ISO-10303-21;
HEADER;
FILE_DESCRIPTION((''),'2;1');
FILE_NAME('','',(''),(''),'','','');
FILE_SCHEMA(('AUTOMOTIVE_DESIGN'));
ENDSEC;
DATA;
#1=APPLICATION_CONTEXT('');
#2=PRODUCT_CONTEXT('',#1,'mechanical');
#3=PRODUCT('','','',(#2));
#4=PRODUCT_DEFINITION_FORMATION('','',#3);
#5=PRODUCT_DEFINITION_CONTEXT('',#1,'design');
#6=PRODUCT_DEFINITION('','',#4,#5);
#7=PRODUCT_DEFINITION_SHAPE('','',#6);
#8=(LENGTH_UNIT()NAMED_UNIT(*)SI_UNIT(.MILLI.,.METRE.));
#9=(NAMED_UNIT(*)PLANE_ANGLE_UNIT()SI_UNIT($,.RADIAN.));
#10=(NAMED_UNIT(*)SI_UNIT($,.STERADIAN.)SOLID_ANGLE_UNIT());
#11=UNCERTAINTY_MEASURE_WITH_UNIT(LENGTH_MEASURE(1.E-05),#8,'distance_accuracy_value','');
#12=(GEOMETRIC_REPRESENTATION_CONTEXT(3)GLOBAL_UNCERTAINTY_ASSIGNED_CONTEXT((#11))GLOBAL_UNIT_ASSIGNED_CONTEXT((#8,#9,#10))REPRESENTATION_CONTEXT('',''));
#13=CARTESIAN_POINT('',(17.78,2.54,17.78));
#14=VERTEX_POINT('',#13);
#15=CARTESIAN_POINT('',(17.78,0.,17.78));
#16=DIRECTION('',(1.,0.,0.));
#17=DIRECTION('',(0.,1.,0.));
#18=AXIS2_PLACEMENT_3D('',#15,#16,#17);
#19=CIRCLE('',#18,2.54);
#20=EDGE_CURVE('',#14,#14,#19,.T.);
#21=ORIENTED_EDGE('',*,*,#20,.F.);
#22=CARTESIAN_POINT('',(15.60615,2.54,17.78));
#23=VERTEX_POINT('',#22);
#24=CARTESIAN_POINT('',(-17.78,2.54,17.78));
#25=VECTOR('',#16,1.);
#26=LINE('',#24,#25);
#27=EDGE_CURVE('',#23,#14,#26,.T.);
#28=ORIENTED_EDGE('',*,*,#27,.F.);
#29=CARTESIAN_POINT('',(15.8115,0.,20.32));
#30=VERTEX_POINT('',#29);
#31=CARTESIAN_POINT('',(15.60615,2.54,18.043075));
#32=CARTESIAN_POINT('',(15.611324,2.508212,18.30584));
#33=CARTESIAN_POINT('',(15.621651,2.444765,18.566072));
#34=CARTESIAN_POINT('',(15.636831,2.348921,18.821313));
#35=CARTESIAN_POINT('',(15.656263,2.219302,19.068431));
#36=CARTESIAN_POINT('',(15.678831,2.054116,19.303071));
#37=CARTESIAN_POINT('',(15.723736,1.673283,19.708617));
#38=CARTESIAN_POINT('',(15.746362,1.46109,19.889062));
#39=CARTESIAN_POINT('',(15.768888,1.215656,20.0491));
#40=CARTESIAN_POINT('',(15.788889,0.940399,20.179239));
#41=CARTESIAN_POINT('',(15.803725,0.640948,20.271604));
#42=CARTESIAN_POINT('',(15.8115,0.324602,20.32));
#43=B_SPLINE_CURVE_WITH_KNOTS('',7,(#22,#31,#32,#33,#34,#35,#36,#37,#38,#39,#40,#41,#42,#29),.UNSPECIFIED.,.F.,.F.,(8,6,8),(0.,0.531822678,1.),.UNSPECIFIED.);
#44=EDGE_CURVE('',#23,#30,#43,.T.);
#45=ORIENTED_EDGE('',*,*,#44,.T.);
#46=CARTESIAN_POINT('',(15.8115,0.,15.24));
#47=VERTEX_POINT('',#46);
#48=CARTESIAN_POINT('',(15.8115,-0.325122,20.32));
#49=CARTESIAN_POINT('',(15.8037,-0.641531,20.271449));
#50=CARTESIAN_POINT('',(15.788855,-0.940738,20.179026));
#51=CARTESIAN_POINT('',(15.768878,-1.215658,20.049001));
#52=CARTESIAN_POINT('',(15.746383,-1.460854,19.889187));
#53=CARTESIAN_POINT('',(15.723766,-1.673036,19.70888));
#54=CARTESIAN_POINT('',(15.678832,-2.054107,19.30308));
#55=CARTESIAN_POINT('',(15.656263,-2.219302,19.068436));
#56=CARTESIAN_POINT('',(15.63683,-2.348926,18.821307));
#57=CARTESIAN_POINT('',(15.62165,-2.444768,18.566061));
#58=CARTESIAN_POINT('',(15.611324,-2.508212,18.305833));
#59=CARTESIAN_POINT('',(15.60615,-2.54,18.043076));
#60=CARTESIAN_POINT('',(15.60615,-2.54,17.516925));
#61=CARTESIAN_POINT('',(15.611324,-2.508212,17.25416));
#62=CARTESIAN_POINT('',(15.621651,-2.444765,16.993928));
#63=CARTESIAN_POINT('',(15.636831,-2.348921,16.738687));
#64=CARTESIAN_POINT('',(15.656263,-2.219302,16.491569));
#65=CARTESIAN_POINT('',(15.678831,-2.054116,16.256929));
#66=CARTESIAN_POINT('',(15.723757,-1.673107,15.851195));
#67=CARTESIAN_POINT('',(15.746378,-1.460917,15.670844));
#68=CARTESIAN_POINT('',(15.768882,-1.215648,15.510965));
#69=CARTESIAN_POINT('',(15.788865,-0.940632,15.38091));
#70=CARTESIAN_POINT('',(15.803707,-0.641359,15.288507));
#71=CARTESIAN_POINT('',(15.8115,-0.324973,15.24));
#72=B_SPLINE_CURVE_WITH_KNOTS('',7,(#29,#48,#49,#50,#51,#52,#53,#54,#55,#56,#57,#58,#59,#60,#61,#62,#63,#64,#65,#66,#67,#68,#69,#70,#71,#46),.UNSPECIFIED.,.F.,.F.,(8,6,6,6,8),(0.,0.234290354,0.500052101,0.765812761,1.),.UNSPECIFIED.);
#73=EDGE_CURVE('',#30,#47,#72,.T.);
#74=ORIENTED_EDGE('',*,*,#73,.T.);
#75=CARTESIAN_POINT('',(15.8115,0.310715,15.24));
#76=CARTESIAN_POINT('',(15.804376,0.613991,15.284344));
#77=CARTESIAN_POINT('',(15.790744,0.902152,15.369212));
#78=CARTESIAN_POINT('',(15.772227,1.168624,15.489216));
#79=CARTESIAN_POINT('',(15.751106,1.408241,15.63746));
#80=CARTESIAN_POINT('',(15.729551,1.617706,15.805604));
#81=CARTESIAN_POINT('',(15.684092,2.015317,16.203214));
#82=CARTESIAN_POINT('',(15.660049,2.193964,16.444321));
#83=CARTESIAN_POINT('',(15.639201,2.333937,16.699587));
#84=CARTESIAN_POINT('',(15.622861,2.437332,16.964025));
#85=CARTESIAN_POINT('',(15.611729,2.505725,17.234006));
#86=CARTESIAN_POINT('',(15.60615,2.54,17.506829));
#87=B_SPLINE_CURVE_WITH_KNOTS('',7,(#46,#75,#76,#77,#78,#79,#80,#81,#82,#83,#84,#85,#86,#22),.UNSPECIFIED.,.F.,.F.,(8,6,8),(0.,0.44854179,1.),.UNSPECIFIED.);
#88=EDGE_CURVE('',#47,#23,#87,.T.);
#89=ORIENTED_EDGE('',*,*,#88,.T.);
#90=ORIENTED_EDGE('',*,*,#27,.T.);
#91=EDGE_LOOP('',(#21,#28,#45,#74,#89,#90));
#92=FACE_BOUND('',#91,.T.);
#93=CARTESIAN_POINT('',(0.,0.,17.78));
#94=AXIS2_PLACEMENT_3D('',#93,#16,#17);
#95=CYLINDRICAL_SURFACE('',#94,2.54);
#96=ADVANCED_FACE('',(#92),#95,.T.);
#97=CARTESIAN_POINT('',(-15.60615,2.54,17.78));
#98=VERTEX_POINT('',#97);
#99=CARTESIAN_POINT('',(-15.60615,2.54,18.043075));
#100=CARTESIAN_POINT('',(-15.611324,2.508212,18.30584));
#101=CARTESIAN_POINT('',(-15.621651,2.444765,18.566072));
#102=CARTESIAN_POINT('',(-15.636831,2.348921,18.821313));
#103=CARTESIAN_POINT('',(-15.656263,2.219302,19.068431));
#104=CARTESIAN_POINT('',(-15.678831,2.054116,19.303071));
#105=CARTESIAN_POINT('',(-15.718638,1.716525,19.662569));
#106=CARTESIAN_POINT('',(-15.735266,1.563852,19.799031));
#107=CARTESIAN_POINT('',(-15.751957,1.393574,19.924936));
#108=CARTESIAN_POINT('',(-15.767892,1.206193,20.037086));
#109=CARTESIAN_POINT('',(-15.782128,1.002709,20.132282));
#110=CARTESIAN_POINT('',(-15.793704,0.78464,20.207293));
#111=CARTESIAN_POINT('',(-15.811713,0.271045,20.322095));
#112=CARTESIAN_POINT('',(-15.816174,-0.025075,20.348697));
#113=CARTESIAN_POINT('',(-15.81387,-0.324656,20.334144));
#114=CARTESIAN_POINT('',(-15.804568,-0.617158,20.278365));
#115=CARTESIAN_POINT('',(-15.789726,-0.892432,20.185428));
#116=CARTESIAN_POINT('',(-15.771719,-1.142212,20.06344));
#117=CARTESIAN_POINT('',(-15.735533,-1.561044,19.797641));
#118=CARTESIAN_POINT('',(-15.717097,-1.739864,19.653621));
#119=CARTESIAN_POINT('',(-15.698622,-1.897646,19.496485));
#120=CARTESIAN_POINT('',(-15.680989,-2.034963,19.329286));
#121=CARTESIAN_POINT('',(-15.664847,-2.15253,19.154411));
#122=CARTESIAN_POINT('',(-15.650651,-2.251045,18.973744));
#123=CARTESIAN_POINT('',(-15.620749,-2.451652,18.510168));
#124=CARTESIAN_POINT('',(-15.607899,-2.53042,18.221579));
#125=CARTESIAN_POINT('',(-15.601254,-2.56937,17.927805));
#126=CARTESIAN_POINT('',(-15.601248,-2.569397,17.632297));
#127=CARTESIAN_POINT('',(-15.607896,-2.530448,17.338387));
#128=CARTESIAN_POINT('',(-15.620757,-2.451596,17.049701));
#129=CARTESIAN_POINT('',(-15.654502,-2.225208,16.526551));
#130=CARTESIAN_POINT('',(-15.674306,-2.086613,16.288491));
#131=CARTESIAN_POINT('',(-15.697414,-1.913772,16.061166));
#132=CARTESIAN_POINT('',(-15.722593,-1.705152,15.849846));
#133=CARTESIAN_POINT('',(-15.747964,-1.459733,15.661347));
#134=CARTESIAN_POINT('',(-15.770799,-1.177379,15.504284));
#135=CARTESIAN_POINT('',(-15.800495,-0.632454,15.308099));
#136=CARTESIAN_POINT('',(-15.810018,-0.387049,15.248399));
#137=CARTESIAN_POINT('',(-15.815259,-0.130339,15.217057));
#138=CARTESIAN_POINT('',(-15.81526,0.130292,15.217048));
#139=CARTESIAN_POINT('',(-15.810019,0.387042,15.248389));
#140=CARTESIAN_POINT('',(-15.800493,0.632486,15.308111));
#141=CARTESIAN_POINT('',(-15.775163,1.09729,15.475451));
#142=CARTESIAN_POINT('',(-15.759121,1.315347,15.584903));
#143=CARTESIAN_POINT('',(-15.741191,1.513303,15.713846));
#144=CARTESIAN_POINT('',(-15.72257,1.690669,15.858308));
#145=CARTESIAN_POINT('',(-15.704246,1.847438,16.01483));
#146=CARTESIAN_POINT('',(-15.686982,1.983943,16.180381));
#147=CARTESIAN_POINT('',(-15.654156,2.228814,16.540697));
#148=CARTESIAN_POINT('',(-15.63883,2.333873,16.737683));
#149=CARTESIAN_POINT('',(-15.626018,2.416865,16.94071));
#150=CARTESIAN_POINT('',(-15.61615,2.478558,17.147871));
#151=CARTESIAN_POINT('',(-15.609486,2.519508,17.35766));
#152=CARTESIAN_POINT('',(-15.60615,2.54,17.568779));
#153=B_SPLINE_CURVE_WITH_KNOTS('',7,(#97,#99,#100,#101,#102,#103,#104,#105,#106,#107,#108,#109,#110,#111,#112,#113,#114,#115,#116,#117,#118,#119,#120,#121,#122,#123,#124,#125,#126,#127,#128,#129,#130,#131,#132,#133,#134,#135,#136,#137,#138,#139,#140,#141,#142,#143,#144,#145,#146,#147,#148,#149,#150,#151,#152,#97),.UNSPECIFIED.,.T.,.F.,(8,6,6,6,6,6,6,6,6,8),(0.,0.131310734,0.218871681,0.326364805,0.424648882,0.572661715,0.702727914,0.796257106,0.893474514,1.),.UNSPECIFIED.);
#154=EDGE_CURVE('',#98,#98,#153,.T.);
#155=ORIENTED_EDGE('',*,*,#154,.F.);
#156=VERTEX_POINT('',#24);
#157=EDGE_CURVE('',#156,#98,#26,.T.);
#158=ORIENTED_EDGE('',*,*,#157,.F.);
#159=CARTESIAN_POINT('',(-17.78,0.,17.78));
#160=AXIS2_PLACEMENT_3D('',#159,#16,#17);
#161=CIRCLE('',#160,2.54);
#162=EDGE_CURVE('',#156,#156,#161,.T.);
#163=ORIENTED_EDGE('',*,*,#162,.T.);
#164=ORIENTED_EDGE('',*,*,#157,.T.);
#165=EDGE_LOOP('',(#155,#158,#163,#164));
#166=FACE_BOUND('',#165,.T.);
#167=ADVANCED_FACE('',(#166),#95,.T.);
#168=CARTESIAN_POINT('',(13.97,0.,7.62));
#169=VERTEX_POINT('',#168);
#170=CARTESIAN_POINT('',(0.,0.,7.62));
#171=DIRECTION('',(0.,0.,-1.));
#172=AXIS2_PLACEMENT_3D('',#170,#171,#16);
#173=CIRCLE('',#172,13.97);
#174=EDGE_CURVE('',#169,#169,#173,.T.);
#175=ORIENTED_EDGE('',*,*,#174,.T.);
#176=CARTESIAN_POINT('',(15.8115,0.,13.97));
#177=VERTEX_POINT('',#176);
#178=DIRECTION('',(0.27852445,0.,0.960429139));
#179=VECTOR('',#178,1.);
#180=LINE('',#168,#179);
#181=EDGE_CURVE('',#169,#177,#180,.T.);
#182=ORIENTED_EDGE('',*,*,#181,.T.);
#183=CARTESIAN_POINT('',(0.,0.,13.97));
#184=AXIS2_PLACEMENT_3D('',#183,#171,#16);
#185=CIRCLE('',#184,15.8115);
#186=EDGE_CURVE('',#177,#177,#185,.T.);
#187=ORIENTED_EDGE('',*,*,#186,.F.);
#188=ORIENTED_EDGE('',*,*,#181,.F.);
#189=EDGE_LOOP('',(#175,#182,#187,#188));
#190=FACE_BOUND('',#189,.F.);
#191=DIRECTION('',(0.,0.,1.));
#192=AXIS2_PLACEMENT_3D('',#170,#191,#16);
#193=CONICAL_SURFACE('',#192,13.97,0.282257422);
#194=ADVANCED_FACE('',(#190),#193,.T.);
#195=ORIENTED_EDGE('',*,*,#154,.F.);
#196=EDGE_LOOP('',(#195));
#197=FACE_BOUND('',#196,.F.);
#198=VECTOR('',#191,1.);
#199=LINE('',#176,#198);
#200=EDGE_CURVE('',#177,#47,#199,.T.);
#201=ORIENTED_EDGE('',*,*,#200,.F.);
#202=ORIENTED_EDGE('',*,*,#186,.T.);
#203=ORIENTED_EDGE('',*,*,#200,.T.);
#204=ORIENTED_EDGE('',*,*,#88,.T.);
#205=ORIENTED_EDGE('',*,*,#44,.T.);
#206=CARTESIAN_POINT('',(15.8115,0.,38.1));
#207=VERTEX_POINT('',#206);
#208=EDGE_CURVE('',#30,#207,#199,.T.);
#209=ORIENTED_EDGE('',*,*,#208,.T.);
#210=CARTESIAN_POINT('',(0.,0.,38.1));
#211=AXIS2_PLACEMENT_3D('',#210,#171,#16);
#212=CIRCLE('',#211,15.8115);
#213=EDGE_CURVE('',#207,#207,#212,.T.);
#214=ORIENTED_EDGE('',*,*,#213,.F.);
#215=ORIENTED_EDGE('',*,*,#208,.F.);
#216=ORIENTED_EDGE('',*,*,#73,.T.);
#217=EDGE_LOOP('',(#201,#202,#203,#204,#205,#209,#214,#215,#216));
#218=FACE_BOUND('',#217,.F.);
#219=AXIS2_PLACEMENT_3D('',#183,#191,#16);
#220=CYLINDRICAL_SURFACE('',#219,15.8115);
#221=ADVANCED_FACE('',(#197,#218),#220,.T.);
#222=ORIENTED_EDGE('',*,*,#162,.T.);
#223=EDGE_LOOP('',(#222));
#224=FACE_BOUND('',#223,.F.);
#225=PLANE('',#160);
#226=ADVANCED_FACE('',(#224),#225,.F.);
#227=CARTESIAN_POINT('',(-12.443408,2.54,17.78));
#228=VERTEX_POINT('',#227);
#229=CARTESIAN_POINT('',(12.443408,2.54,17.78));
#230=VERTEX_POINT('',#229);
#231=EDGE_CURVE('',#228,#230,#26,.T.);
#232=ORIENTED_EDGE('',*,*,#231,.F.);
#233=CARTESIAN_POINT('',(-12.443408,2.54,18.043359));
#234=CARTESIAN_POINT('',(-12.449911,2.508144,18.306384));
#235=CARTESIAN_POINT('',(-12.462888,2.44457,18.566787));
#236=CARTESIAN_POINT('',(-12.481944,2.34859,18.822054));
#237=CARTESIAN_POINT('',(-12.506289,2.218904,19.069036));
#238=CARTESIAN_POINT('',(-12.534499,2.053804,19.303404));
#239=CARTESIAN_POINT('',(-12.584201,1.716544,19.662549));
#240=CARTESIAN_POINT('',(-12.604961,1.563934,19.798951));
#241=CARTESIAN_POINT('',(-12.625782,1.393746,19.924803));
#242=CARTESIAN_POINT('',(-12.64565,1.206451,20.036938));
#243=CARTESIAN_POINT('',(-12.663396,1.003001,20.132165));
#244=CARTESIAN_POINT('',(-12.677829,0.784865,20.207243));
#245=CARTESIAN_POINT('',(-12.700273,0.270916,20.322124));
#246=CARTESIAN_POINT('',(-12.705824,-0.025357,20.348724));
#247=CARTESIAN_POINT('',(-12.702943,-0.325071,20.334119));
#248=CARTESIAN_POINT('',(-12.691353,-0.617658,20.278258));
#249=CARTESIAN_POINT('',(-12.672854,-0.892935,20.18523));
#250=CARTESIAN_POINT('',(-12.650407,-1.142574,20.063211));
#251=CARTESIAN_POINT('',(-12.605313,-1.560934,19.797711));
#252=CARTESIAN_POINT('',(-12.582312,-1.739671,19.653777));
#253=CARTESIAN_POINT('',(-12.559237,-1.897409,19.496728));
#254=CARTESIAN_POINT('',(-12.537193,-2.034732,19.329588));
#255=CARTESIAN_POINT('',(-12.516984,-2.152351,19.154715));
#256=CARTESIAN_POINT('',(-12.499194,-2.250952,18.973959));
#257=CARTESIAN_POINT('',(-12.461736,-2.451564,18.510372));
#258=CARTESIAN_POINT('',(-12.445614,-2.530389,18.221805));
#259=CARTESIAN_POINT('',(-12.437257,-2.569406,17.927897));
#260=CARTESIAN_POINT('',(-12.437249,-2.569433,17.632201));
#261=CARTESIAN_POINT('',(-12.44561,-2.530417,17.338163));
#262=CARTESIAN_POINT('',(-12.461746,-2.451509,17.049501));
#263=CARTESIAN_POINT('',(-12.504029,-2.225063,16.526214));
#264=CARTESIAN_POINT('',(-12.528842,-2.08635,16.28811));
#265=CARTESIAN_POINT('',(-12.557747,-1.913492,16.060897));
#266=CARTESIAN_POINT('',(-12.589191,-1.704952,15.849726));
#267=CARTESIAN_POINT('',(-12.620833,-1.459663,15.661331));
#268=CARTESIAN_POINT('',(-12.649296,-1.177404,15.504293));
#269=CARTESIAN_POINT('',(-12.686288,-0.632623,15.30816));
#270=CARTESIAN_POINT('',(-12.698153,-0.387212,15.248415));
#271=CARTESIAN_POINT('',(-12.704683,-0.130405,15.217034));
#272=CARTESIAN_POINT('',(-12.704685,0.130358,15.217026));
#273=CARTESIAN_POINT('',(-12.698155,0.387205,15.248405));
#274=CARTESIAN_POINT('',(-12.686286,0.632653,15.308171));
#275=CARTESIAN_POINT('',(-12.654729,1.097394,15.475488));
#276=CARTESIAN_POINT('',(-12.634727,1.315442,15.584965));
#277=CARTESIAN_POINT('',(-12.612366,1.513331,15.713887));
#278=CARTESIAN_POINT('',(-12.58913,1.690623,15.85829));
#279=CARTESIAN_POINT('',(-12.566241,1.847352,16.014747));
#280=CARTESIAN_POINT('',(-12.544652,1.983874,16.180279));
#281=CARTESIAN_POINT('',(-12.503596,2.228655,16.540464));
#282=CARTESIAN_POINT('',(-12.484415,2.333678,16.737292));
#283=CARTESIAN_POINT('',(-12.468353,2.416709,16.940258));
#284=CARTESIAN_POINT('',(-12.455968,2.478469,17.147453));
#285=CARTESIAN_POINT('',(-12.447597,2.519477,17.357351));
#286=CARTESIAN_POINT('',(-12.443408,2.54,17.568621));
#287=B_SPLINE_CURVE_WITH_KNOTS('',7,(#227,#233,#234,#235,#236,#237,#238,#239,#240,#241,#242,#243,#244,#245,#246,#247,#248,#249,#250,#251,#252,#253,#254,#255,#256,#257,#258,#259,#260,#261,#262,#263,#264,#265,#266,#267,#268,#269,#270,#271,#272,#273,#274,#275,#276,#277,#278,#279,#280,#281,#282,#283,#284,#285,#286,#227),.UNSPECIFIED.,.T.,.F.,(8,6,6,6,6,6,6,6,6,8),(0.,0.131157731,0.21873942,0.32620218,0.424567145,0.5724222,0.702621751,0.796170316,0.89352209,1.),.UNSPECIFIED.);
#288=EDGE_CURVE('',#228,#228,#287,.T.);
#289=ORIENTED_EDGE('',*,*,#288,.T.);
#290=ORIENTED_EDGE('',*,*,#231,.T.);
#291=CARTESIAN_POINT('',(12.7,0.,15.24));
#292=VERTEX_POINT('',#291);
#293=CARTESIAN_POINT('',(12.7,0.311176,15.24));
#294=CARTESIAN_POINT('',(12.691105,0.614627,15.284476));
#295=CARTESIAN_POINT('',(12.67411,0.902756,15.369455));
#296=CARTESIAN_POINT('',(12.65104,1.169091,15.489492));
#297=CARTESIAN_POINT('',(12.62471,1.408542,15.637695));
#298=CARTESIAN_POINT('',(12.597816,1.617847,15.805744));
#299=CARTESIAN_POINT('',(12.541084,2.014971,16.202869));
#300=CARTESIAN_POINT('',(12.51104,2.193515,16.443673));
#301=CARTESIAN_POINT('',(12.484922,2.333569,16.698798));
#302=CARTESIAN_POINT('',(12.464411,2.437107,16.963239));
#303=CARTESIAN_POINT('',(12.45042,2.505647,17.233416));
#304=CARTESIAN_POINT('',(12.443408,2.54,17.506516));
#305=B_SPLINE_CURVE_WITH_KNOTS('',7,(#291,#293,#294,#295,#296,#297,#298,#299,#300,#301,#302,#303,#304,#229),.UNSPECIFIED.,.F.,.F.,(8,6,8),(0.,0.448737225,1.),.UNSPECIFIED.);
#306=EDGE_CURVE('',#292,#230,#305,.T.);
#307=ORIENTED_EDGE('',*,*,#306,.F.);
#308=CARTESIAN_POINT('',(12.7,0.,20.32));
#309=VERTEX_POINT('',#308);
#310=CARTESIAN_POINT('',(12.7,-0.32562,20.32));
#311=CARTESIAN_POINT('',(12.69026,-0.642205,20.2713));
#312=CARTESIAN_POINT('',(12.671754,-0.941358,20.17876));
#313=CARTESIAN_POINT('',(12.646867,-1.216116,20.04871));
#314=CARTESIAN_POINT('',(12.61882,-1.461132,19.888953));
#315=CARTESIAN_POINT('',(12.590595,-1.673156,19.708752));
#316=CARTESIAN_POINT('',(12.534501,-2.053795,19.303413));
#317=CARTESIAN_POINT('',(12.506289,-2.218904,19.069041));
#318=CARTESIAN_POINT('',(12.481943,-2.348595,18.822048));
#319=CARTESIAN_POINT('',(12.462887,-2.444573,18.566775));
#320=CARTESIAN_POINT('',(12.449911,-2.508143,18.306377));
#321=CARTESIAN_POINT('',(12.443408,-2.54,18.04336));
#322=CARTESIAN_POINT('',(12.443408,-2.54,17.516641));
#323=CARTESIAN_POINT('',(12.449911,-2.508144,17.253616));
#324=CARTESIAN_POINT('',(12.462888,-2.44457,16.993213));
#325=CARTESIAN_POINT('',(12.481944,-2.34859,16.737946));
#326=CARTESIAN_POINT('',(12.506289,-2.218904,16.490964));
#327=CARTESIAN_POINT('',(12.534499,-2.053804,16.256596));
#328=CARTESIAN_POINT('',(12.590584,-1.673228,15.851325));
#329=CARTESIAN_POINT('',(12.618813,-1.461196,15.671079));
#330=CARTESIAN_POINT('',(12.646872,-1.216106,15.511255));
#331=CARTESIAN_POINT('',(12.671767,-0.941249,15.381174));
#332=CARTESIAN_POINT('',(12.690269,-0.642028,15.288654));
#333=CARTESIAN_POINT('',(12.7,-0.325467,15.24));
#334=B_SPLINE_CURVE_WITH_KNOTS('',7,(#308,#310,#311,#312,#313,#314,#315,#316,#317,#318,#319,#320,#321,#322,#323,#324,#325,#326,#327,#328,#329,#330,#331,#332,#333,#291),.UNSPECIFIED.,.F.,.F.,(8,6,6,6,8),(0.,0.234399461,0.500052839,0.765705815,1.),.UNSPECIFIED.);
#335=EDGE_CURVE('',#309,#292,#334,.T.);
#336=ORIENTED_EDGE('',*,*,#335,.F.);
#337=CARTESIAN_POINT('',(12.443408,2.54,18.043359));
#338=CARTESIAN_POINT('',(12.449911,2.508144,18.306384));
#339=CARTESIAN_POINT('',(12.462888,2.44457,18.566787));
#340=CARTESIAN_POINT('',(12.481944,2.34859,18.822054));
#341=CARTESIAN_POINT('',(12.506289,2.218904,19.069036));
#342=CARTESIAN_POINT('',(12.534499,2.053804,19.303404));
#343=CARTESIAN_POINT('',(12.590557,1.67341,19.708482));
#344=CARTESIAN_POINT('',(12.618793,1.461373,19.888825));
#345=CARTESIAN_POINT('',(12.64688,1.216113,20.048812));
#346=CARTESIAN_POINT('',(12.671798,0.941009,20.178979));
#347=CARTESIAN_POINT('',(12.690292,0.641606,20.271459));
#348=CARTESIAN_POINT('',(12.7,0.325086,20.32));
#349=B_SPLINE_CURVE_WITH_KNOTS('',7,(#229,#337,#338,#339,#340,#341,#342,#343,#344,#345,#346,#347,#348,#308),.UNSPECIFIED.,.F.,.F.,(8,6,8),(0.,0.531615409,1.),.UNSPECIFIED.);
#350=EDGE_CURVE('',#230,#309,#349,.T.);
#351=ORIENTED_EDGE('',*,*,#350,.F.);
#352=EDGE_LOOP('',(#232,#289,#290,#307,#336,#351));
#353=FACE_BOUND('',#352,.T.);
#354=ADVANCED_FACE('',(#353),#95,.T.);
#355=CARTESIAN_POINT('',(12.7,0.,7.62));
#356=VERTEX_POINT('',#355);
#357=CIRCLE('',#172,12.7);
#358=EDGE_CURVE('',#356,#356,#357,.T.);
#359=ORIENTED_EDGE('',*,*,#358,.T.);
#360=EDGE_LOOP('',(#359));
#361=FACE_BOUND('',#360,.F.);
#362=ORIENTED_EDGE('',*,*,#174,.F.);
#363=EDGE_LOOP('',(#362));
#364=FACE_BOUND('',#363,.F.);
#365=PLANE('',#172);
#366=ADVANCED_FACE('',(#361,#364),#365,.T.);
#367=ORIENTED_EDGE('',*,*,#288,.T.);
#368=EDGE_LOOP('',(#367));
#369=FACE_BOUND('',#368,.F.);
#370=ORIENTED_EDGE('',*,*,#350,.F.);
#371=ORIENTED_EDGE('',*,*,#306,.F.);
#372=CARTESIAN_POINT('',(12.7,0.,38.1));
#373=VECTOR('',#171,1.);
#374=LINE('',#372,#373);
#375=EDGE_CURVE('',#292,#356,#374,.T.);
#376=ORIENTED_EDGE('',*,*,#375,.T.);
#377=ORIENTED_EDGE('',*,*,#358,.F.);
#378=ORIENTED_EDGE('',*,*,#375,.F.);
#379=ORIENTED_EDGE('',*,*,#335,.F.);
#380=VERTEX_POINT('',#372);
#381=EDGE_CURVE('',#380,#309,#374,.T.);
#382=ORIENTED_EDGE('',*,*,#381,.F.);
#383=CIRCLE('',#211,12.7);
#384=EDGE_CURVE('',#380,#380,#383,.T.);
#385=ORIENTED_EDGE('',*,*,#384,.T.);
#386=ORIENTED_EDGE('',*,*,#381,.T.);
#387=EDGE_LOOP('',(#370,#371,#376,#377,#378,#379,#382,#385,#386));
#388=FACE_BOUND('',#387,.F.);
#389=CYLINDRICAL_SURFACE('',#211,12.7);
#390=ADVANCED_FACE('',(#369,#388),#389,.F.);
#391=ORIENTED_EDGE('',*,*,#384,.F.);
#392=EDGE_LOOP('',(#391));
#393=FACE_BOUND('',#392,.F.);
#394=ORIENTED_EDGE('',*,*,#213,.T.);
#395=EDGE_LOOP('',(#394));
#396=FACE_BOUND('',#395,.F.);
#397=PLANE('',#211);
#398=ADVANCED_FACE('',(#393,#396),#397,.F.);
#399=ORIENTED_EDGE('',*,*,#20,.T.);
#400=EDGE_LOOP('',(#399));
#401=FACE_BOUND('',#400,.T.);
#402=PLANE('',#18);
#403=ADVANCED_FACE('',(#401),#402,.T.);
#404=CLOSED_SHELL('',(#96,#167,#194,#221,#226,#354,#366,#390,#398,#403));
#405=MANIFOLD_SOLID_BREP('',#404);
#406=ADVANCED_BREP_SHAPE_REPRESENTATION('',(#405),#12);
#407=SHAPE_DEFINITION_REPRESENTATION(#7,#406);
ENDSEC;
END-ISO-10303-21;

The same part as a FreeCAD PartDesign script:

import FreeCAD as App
import Part
import Sketcher
from FreeCAD import Vector
Q = App.Units.Quantity

doc = App.newDocument("Part")
body = doc.addObject("PartDesign::Body", "Body")

# Sketch on XZ plane
sketch1 = body.newObject("Sketcher::SketchObject", "Sketch")
sketch1.AttachmentSupport = (doc.getObject("XZ_Plane"), [""])
sketch1.MapMode = "FlatFace"
sketch1.addGeometry([
    Part.LineSegment(Vector(12.7, 7.6, 0), Vector(14, 7.6, 0)),  # 0
    Part.LineSegment(Vector(14, 7.6, 0), Vector(15.8, 14, 0)),  # 1
    Part.LineSegment(Vector(15.8, 14, 0), Vector(15.8, 38.1, 0)),  # 2
    Part.LineSegment(Vector(15.8, 38.1, 0), Vector(12.7, 38.1, 0)),  # 3
    Part.LineSegment(Vector(12.7, 38.1, 0), Vector(12.7, 7.6, 0)),  # 4
], False)
sketch1.addConstraint([
    Sketcher.Constraint("Coincident", 0, 2, 1, 1),
    Sketcher.Constraint("Coincident", 1, 2, 2, 1),
    Sketcher.Constraint("Coincident", 2, 2, 3, 1),
    Sketcher.Constraint("Coincident", 3, 2, 4, 1),
    Sketcher.Constraint("Coincident", 4, 2, 0, 1),
    Sketcher.Constraint("Horizontal", 0),
    Sketcher.Constraint("Vertical", 2),
    Sketcher.Constraint("Horizontal", 3),
    Sketcher.Constraint("Vertical", 4),
    Sketcher.Constraint("DistanceY", 4, 2, 4, 1, Q("1.2 in")),
    Sketcher.Constraint("DistanceX", 0, 1, 0, 2, Q("0.05 in")),
    Sketcher.Constraint("DistanceY", 2, 1, 2, 2, Q("0.95 in")),
    Sketcher.Constraint("DistanceY", -1, 1, 0, 2, Q("0.3 in")),
    Sketcher.Constraint("DistanceX", -1, 1, 3, 2, Q("0.5 in")),
    Sketcher.Constraint("DistanceX", 3, 2, 3, 1, Q("0.1225 in")),
])
revolution = body.newObject("PartDesign::Revolution", "Revolution")
revolution.Profile = sketch1
revolution.ReferenceAxis = (sketch1, ["V_Axis"])
revolution.Angle = 360

# Sketch on YZ plane
sketch2 = body.newObject("Sketcher::SketchObject", "Sketch001")
sketch2.AttachmentSupport = (doc.getObject("YZ_Plane"), [""])
sketch2.MapMode = "FlatFace"
sketch2.addGeometry(Part.Circle(Vector(0, 17.8, 0), Vector(0, 0, 1), 2.5), False)
sketch2.addConstraint([
    Sketcher.Constraint("PointOnObject", 0, 3, -2),
    Sketcher.Constraint("Diameter", 0, Q("0.2 in")),
    Sketcher.Constraint("DistanceY", -1, 1, 0, 3, Q("0.7 in")),
])
pad1 = body.newObject("PartDesign::Pad", "Pad")
pad1.Profile = sketch2
pad1.Length = Q("1.4 in")
pad1.Midplane = True

doc.recompute()
